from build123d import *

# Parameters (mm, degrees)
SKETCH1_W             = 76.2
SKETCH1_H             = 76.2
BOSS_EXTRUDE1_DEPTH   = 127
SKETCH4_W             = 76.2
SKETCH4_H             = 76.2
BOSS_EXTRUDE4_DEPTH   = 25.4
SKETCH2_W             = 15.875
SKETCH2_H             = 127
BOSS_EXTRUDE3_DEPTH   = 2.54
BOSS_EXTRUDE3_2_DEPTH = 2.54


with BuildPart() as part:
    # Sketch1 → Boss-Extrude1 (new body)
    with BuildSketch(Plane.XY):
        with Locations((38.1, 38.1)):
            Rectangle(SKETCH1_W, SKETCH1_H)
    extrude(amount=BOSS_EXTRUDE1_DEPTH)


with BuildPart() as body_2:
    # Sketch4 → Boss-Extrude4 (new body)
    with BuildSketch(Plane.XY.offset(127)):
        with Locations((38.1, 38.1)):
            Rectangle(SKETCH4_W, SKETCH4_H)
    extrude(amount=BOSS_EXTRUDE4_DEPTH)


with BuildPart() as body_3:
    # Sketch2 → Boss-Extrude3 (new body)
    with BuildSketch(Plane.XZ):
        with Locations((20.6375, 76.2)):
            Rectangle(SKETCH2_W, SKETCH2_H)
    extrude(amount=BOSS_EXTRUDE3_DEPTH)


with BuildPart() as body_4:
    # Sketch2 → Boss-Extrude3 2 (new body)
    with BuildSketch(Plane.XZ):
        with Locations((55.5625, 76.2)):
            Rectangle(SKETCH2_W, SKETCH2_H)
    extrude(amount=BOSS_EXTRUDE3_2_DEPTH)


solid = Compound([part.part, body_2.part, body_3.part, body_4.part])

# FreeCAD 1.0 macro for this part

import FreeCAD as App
import Part
import Sketcher
from FreeCAD import Vector
Q = App.Units.Quantity


def add_polygon(sketch, points):
    """Adds a closed chain of lines whose ends are joined by coincident constraints."""
    first, n = sketch.GeometryCount, len(points)
    for a, b in zip(points, points[1:] + points[:1]):
        sketch.addGeometry(Part.LineSegment(App.Vector(*a, 0), App.Vector(*b, 0)), False)
    for i in range(n):
        sketch.addConstraint(Sketcher.Constraint("Coincident", first + i, 2, first + (i + 1) % n, 1))

doc = App.newDocument("Part")
body = doc.addObject("PartDesign::Body", "Body")

# Sketch on XY plane
sketch1 = body.newObject("Sketcher::SketchObject", "Sketch")
sketch1.AttachmentSupport = (doc.getObject("XY_Plane"), [""])
sketch1.MapMode = "FlatFace"
add_polygon(sketch1, [(0, 76), (0, 0), (76, 0), (76, 76)])  # lines 0-3
sketch1.addConstraint([
    Sketcher.Constraint("Vertical", 0),
    Sketcher.Constraint("Horizontal", 1),
    Sketcher.Constraint("Vertical", 2),
    Sketcher.Constraint("Horizontal", 3),
    Sketcher.Constraint("Coincident", 0, 2, -1, 1),
    Sketcher.Constraint("Equal", 3, 0),
    Sketcher.Constraint("DistanceX", 1, 1, 1, 2, Q("3 in")),
])
pad1 = body.newObject("PartDesign::Pad", "Pad")
pad1.Profile = sketch1
pad1.Length = Q("5 in")
body2 = doc.addObject("PartDesign::Body", "Body001")

# Sketch on XY plane
sketch2 = body2.newObject("Sketcher::SketchObject", "Sketch001")
sketch2.AttachmentSupport = (doc.getObject("XY_Plane001"), [""])
sketch2.MapMode = "FlatFace"
sketch2.AttachmentOffset = App.Placement(Vector(0, 0, 5 * 25.4), App.Rotation())
add_polygon(sketch2, [(0, 76), (0, 0), (76, 0), (76, 76)])  # lines 0-3
sketch2.addConstraint([
    Sketcher.Constraint("Vertical", 0),
    Sketcher.Constraint("Horizontal", 1),
    Sketcher.Constraint("Vertical", 2),
    Sketcher.Constraint("Horizontal", 3),
    Sketcher.Constraint("Coincident", 0, 2, -1, 1),
    Sketcher.Constraint("Equal", 3, 0),
    Sketcher.Constraint("DistanceX", 1, 1, 1, 2, Q("3 in")),
])
pad2 = body2.newObject("PartDesign::Pad", "Pad001")
pad2.Profile = sketch2
pad2.Length = Q("1 in")
body3 = doc.addObject("PartDesign::Body", "Body002")

# Sketch on XZ plane
sketch3 = body3.newObject("Sketcher::SketchObject", "Sketch002")
sketch3.AttachmentSupport = (doc.getObject("XZ_Plane002"), [""])
sketch3.MapMode = "FlatFace"
add_polygon(sketch3, [(13, 140), (13, 13), (29, 13), (29, 140)])  # lines 0-3
sketch3.addConstraint([
    Sketcher.Constraint("Vertical", 0),
    Sketcher.Constraint("Horizontal", 1),
    Sketcher.Constraint("Vertical", 2),
    Sketcher.Constraint("Horizontal", 3),
    Sketcher.Constraint("DistanceY", 0, 2, 0, 1, Q("5 in")),
    Sketcher.Constraint("DistanceX", -1, 1, 0, 2, Q("0.5 in")),
    Sketcher.Constraint("DistanceY", -1, 1, 0, 2, Q("0.5 in")),
    Sketcher.Constraint("DistanceX", 1, 1, 1, 2, Q("0.625 in")),
])
pad3 = body3.newObject("PartDesign::Pad", "Pad002")
pad3.Profile = sketch3
pad3.Length = Q("0.1 in")
body4 = doc.addObject("PartDesign::Body", "Body003")

# Sketch on XZ plane
sketch4 = body4.newObject("Sketcher::SketchObject", "Sketch003")
sketch4.AttachmentSupport = (doc.getObject("XZ_Plane003"), [""])
sketch4.MapMode = "FlatFace"
add_polygon(sketch4, [(48, 140), (48, 13), (64, 13), (64, 140)])  # lines 0-3
sketch4.addConstraint([
    Sketcher.Constraint("Vertical", 0),
    Sketcher.Constraint("Horizontal", 1),
    Sketcher.Constraint("Vertical", 2),
    Sketcher.Constraint("Horizontal", 3),
    Sketcher.Constraint("DistanceY", 0, 2, 0, 1, Q("5 in")),
    Sketcher.Constraint("DistanceY", -1, 1, 0, 2, Q("0.5 in")),
    Sketcher.Constraint("DistanceX", -1, 1, 1, 2, Q("2.5 in")),
    Sketcher.Constraint("DistanceX", 1, 1, 1, 2, Q("0.625 in")),
])
pad4 = body4.newObject("PartDesign::Pad", "Pad003")
pad4.Profile = sketch4
pad4.Length = Q("0.1 in")

doc.recompute()
